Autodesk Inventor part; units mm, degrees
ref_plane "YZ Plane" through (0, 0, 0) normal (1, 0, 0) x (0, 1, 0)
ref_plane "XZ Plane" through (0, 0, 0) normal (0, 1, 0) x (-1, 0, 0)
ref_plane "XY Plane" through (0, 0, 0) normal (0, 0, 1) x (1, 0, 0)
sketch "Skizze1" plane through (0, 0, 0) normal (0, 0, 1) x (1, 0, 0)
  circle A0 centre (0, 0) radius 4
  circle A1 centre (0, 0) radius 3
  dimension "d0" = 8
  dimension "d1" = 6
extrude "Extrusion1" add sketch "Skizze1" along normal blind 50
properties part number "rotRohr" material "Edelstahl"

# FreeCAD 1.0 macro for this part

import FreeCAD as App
import Part
import Sketcher
from FreeCAD import Vector
Q = App.Units.Quantity

doc = App.newDocument("Part")
params = doc.addObject("Spreadsheet::Sheet", "Params")
for row, (alias, value) in enumerate([
    ("sketch1_diameter", "8 mm"),
    ("sketch1_diameter2", "6 mm"),
    ("pad1_length", "50 mm"),
], start=1):
    params.set(f"A{row}", alias)
    params.set(f"B{row}", "=" + value)
    params.setAlias(f"B{row}", alias)

body = doc.addObject("PartDesign::Body", "Body")

sketch1 = body.newObject("Sketcher::SketchObject", "Sketch")
sketch1.AttachmentSupport = (doc.getObject("XY_Plane"), [""])
sketch1.MapMode = "FlatFace"
sketch1.addGeometry(Part.Circle(Vector(0, 0, 0), Vector(0, 0, 1), 4), False)
sketch1.addGeometry(Part.Circle(Vector(0, 0, 0), Vector(0, 0, 1), 3), False)
sketch1.addConstraint(Sketcher.Constraint("Coincident", 0, 3, -1, 1))
sketch1.addConstraint(Sketcher.Constraint("Coincident", 1, 3, -1, 1))
sketch1.addConstraint(Sketcher.Constraint("Diameter", 0, Q("8 mm")))
sketch1.addConstraint(Sketcher.Constraint("Diameter", 1, Q("6 mm")))
sketch1.setExpression("Constraints[2]", "Params.sketch1_diameter")
sketch1.setExpression("Constraints[3]", "Params.sketch1_diameter2")
pad1 = body.newObject("PartDesign::Pad", "Pad")
pad1.Profile = sketch1
pad1.setExpression("Length", "Params.pad1_length")

doc.recompute()
